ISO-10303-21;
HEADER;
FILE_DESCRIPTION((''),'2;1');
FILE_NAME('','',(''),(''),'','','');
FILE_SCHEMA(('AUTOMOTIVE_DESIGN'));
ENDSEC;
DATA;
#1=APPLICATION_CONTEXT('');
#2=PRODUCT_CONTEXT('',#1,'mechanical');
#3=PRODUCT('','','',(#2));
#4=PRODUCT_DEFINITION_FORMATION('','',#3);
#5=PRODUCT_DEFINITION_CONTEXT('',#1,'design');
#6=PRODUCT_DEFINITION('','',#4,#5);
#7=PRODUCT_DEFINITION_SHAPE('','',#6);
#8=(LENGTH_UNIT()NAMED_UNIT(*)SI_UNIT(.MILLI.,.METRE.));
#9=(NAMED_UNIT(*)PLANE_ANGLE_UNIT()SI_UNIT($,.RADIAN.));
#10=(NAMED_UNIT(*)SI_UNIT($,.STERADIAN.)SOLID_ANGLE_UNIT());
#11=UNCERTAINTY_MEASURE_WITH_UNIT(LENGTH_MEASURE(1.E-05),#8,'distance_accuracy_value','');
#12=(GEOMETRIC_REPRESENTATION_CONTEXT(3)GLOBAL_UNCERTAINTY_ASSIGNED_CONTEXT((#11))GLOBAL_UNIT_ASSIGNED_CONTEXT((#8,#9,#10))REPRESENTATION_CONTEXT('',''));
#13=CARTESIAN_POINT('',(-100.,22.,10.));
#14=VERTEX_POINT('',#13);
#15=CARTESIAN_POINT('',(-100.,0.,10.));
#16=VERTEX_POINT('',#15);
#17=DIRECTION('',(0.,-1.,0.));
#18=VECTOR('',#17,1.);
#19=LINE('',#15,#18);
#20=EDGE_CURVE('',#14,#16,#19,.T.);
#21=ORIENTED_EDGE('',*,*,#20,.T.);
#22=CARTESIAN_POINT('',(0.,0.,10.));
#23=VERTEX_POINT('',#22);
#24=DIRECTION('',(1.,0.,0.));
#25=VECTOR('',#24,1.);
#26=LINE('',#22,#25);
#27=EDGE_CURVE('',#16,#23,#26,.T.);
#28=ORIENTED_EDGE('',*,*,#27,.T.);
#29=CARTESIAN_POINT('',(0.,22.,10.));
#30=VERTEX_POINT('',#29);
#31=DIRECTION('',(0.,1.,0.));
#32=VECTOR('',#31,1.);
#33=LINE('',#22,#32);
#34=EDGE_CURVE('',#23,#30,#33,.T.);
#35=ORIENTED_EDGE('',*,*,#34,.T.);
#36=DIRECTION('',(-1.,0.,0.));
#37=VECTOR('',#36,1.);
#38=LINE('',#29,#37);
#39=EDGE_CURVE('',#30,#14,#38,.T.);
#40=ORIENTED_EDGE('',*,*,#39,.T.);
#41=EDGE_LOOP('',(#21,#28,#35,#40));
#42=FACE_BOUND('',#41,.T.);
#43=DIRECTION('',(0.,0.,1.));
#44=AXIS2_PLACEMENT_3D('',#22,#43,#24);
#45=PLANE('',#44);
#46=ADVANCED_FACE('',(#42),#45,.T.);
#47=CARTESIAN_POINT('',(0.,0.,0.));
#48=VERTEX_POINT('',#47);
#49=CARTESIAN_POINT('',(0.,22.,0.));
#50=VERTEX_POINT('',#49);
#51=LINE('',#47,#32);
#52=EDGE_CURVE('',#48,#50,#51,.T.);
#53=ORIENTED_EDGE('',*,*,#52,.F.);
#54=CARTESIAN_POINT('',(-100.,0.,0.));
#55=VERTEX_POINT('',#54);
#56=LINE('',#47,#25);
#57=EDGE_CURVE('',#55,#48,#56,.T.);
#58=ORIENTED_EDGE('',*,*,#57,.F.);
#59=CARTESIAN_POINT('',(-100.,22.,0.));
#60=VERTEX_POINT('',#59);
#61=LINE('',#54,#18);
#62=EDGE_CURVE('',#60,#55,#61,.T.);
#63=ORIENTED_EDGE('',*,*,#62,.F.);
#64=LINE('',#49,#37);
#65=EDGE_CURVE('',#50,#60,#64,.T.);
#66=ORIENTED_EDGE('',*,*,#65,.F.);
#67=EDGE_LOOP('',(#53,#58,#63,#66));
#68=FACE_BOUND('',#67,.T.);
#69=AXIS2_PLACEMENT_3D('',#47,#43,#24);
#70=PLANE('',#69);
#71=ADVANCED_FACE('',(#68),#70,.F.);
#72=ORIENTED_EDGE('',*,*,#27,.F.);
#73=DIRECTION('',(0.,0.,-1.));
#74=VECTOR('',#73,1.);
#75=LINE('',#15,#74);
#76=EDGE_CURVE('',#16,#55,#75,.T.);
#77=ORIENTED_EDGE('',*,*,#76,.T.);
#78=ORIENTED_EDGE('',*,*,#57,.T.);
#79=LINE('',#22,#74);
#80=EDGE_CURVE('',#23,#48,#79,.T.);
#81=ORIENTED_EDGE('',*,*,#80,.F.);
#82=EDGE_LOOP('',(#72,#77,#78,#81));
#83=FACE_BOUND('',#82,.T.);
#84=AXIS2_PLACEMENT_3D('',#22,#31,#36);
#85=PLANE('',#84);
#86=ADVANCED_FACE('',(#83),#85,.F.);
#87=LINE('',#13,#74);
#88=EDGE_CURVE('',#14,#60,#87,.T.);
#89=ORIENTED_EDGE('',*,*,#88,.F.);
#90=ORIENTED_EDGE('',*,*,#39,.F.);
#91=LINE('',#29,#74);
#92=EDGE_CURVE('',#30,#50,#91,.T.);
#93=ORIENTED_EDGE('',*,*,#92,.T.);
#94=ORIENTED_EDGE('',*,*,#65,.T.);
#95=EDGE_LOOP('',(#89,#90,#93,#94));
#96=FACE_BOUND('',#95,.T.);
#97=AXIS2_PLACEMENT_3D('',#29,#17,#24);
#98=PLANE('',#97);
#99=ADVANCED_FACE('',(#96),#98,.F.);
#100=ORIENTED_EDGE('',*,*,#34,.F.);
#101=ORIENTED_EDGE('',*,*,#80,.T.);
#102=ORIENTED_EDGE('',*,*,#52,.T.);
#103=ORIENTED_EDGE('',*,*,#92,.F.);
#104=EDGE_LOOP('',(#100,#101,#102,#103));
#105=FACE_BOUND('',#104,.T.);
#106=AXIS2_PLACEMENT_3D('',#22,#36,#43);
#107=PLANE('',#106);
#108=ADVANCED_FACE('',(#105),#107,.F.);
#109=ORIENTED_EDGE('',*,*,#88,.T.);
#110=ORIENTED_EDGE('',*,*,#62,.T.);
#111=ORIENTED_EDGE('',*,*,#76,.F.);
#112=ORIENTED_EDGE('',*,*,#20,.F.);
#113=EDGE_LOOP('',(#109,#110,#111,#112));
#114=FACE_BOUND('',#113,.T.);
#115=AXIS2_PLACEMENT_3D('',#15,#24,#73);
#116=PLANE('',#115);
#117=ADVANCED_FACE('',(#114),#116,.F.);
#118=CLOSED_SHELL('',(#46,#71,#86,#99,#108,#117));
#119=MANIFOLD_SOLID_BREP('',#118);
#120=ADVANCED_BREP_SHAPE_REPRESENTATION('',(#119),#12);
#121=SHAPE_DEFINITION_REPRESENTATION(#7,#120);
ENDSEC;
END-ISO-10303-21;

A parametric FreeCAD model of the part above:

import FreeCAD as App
import Part
import Sketcher

V = App.Vector


def add_polygon(sketch, points):
    """Adds a closed chain of lines whose ends are joined by coincident constraints."""
    first, n = sketch.GeometryCount, len(points)
    for a, b in zip(points, points[1:] + points[:1]):
        sketch.addGeometry(Part.LineSegment(App.Vector(*a, 0), App.Vector(*b, 0)), False)
    for i in range(n):
        sketch.addConstraint(Sketcher.Constraint("Coincident", first + i, 2, first + (i + 1) % n, 1))

doc = App.newDocument("Part")
body = doc.addObject("PartDesign::Body", "Body")

sketch1 = doc.addObject("Sketcher::SketchObject", "Sketch")
body.addObject(sketch1)
sketch1.AttachmentSupport = (doc.XY_Plane, [""])
sketch1.MapMode = "FlatFace"
add_polygon(sketch1, [(-100, 22), (-100, 0), (0, 0), (0, 22)])
sketch1.addConstraint(Sketcher.Constraint("Vertical", 0))
sketch1.addConstraint(Sketcher.Constraint("Horizontal", 1))
sketch1.addConstraint(Sketcher.Constraint("Vertical", 2))
sketch1.addConstraint(Sketcher.Constraint("Horizontal", 3))
sketch1.addConstraint(Sketcher.Constraint("Coincident", 1, 2, -1, 1))
sketch1.addConstraint(Sketcher.Constraint("DistanceX", 1, 1, 1, 2, 100.0))
sketch1.addConstraint(Sketcher.Constraint("DistanceY", 0, 2, 0, 1, 22.0))
pad1 = doc.addObject("PartDesign::Pad", "Pad")
body.addObject(pad1)
pad1.Profile = sketch1
pad1.Length = 10

doc.recompute()
